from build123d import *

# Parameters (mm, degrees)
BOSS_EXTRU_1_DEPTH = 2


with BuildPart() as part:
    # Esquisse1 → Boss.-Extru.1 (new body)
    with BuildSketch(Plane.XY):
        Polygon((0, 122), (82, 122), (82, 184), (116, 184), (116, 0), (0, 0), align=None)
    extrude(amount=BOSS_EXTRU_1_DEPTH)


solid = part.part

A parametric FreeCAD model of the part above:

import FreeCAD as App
import Part
import Sketcher

V = App.Vector

doc = App.newDocument("Part")
body = doc.addObject("PartDesign::Body", "Body")

sketch1 = doc.addObject("Sketcher::SketchObject", "Sketch")
body.addObject(sketch1)
sketch1.AttachmentSupport = (doc.XY_Plane, [""])
sketch1.MapMode = "FlatFace"
sketch1.addGeometry(Part.LineSegment(V(82, 122, 0), V(0, 122, 0)), False)
sketch1.addGeometry(Part.LineSegment(V(0, 122, 0), V(0, 0, 0)), False)
sketch1.addGeometry(Part.LineSegment(V(0, 0, 0), V(116, 0, 0)), False)
sketch1.addGeometry(Part.LineSegment(V(116, 0, 0), V(116, 184, 0)), False)
sketch1.addGeometry(Part.LineSegment(V(116, 184, 0), V(82, 184, 0)), False)
sketch1.addGeometry(Part.LineSegment(V(82, 184, 0), V(82, 122, 0)), False)
sketch1.addConstraint(Sketcher.Constraint("Coincident", 0, 2, 1, 1))
sketch1.addConstraint(Sketcher.Constraint("Coincident", 1, 2, 2, 1))
sketch1.addConstraint(Sketcher.Constraint("Coincident", 2, 2, 3, 1))
sketch1.addConstraint(Sketcher.Constraint("Coincident", 3, 2, 4, 1))
sketch1.addConstraint(Sketcher.Constraint("Coincident", 4, 2, 5, 1))
sketch1.addConstraint(Sketcher.Constraint("Coincident", 5, 2, 0, 1))
sketch1.addConstraint(Sketcher.Constraint("Horizontal", 0))
sketch1.addConstraint(Sketcher.Constraint("Vertical", 1))
sketch1.addConstraint(Sketcher.Constraint("Horizontal", 2))
sketch1.addConstraint(Sketcher.Constraint("Vertical", 3))
sketch1.addConstraint(Sketcher.Constraint("Horizontal", 4))
sketch1.addConstraint(Sketcher.Constraint("Vertical", 5))
sketch1.addConstraint(Sketcher.Constraint("Coincident", 1, 2, -1, 1))
sketch1.addConstraint(Sketcher.Constraint("DistanceX", 0, 2, 0, 1, 82.0))
sketch1.addConstraint(Sketcher.Constraint("DistanceX", 2, 1, 2, 2, 116.0))
sketch1.addConstraint(Sketcher.Constraint("DistanceY", 1, 2, 1, 1, 122.0))
sketch1.addConstraint(Sketcher.Constraint("DistanceY", 3, 1, 3, 2, 184.0))
pad1 = doc.addObject("PartDesign::Pad", "Pad")
body.addObject(pad1)
pad1.Profile = sketch1
pad1.Length = 2

doc.recompute()
